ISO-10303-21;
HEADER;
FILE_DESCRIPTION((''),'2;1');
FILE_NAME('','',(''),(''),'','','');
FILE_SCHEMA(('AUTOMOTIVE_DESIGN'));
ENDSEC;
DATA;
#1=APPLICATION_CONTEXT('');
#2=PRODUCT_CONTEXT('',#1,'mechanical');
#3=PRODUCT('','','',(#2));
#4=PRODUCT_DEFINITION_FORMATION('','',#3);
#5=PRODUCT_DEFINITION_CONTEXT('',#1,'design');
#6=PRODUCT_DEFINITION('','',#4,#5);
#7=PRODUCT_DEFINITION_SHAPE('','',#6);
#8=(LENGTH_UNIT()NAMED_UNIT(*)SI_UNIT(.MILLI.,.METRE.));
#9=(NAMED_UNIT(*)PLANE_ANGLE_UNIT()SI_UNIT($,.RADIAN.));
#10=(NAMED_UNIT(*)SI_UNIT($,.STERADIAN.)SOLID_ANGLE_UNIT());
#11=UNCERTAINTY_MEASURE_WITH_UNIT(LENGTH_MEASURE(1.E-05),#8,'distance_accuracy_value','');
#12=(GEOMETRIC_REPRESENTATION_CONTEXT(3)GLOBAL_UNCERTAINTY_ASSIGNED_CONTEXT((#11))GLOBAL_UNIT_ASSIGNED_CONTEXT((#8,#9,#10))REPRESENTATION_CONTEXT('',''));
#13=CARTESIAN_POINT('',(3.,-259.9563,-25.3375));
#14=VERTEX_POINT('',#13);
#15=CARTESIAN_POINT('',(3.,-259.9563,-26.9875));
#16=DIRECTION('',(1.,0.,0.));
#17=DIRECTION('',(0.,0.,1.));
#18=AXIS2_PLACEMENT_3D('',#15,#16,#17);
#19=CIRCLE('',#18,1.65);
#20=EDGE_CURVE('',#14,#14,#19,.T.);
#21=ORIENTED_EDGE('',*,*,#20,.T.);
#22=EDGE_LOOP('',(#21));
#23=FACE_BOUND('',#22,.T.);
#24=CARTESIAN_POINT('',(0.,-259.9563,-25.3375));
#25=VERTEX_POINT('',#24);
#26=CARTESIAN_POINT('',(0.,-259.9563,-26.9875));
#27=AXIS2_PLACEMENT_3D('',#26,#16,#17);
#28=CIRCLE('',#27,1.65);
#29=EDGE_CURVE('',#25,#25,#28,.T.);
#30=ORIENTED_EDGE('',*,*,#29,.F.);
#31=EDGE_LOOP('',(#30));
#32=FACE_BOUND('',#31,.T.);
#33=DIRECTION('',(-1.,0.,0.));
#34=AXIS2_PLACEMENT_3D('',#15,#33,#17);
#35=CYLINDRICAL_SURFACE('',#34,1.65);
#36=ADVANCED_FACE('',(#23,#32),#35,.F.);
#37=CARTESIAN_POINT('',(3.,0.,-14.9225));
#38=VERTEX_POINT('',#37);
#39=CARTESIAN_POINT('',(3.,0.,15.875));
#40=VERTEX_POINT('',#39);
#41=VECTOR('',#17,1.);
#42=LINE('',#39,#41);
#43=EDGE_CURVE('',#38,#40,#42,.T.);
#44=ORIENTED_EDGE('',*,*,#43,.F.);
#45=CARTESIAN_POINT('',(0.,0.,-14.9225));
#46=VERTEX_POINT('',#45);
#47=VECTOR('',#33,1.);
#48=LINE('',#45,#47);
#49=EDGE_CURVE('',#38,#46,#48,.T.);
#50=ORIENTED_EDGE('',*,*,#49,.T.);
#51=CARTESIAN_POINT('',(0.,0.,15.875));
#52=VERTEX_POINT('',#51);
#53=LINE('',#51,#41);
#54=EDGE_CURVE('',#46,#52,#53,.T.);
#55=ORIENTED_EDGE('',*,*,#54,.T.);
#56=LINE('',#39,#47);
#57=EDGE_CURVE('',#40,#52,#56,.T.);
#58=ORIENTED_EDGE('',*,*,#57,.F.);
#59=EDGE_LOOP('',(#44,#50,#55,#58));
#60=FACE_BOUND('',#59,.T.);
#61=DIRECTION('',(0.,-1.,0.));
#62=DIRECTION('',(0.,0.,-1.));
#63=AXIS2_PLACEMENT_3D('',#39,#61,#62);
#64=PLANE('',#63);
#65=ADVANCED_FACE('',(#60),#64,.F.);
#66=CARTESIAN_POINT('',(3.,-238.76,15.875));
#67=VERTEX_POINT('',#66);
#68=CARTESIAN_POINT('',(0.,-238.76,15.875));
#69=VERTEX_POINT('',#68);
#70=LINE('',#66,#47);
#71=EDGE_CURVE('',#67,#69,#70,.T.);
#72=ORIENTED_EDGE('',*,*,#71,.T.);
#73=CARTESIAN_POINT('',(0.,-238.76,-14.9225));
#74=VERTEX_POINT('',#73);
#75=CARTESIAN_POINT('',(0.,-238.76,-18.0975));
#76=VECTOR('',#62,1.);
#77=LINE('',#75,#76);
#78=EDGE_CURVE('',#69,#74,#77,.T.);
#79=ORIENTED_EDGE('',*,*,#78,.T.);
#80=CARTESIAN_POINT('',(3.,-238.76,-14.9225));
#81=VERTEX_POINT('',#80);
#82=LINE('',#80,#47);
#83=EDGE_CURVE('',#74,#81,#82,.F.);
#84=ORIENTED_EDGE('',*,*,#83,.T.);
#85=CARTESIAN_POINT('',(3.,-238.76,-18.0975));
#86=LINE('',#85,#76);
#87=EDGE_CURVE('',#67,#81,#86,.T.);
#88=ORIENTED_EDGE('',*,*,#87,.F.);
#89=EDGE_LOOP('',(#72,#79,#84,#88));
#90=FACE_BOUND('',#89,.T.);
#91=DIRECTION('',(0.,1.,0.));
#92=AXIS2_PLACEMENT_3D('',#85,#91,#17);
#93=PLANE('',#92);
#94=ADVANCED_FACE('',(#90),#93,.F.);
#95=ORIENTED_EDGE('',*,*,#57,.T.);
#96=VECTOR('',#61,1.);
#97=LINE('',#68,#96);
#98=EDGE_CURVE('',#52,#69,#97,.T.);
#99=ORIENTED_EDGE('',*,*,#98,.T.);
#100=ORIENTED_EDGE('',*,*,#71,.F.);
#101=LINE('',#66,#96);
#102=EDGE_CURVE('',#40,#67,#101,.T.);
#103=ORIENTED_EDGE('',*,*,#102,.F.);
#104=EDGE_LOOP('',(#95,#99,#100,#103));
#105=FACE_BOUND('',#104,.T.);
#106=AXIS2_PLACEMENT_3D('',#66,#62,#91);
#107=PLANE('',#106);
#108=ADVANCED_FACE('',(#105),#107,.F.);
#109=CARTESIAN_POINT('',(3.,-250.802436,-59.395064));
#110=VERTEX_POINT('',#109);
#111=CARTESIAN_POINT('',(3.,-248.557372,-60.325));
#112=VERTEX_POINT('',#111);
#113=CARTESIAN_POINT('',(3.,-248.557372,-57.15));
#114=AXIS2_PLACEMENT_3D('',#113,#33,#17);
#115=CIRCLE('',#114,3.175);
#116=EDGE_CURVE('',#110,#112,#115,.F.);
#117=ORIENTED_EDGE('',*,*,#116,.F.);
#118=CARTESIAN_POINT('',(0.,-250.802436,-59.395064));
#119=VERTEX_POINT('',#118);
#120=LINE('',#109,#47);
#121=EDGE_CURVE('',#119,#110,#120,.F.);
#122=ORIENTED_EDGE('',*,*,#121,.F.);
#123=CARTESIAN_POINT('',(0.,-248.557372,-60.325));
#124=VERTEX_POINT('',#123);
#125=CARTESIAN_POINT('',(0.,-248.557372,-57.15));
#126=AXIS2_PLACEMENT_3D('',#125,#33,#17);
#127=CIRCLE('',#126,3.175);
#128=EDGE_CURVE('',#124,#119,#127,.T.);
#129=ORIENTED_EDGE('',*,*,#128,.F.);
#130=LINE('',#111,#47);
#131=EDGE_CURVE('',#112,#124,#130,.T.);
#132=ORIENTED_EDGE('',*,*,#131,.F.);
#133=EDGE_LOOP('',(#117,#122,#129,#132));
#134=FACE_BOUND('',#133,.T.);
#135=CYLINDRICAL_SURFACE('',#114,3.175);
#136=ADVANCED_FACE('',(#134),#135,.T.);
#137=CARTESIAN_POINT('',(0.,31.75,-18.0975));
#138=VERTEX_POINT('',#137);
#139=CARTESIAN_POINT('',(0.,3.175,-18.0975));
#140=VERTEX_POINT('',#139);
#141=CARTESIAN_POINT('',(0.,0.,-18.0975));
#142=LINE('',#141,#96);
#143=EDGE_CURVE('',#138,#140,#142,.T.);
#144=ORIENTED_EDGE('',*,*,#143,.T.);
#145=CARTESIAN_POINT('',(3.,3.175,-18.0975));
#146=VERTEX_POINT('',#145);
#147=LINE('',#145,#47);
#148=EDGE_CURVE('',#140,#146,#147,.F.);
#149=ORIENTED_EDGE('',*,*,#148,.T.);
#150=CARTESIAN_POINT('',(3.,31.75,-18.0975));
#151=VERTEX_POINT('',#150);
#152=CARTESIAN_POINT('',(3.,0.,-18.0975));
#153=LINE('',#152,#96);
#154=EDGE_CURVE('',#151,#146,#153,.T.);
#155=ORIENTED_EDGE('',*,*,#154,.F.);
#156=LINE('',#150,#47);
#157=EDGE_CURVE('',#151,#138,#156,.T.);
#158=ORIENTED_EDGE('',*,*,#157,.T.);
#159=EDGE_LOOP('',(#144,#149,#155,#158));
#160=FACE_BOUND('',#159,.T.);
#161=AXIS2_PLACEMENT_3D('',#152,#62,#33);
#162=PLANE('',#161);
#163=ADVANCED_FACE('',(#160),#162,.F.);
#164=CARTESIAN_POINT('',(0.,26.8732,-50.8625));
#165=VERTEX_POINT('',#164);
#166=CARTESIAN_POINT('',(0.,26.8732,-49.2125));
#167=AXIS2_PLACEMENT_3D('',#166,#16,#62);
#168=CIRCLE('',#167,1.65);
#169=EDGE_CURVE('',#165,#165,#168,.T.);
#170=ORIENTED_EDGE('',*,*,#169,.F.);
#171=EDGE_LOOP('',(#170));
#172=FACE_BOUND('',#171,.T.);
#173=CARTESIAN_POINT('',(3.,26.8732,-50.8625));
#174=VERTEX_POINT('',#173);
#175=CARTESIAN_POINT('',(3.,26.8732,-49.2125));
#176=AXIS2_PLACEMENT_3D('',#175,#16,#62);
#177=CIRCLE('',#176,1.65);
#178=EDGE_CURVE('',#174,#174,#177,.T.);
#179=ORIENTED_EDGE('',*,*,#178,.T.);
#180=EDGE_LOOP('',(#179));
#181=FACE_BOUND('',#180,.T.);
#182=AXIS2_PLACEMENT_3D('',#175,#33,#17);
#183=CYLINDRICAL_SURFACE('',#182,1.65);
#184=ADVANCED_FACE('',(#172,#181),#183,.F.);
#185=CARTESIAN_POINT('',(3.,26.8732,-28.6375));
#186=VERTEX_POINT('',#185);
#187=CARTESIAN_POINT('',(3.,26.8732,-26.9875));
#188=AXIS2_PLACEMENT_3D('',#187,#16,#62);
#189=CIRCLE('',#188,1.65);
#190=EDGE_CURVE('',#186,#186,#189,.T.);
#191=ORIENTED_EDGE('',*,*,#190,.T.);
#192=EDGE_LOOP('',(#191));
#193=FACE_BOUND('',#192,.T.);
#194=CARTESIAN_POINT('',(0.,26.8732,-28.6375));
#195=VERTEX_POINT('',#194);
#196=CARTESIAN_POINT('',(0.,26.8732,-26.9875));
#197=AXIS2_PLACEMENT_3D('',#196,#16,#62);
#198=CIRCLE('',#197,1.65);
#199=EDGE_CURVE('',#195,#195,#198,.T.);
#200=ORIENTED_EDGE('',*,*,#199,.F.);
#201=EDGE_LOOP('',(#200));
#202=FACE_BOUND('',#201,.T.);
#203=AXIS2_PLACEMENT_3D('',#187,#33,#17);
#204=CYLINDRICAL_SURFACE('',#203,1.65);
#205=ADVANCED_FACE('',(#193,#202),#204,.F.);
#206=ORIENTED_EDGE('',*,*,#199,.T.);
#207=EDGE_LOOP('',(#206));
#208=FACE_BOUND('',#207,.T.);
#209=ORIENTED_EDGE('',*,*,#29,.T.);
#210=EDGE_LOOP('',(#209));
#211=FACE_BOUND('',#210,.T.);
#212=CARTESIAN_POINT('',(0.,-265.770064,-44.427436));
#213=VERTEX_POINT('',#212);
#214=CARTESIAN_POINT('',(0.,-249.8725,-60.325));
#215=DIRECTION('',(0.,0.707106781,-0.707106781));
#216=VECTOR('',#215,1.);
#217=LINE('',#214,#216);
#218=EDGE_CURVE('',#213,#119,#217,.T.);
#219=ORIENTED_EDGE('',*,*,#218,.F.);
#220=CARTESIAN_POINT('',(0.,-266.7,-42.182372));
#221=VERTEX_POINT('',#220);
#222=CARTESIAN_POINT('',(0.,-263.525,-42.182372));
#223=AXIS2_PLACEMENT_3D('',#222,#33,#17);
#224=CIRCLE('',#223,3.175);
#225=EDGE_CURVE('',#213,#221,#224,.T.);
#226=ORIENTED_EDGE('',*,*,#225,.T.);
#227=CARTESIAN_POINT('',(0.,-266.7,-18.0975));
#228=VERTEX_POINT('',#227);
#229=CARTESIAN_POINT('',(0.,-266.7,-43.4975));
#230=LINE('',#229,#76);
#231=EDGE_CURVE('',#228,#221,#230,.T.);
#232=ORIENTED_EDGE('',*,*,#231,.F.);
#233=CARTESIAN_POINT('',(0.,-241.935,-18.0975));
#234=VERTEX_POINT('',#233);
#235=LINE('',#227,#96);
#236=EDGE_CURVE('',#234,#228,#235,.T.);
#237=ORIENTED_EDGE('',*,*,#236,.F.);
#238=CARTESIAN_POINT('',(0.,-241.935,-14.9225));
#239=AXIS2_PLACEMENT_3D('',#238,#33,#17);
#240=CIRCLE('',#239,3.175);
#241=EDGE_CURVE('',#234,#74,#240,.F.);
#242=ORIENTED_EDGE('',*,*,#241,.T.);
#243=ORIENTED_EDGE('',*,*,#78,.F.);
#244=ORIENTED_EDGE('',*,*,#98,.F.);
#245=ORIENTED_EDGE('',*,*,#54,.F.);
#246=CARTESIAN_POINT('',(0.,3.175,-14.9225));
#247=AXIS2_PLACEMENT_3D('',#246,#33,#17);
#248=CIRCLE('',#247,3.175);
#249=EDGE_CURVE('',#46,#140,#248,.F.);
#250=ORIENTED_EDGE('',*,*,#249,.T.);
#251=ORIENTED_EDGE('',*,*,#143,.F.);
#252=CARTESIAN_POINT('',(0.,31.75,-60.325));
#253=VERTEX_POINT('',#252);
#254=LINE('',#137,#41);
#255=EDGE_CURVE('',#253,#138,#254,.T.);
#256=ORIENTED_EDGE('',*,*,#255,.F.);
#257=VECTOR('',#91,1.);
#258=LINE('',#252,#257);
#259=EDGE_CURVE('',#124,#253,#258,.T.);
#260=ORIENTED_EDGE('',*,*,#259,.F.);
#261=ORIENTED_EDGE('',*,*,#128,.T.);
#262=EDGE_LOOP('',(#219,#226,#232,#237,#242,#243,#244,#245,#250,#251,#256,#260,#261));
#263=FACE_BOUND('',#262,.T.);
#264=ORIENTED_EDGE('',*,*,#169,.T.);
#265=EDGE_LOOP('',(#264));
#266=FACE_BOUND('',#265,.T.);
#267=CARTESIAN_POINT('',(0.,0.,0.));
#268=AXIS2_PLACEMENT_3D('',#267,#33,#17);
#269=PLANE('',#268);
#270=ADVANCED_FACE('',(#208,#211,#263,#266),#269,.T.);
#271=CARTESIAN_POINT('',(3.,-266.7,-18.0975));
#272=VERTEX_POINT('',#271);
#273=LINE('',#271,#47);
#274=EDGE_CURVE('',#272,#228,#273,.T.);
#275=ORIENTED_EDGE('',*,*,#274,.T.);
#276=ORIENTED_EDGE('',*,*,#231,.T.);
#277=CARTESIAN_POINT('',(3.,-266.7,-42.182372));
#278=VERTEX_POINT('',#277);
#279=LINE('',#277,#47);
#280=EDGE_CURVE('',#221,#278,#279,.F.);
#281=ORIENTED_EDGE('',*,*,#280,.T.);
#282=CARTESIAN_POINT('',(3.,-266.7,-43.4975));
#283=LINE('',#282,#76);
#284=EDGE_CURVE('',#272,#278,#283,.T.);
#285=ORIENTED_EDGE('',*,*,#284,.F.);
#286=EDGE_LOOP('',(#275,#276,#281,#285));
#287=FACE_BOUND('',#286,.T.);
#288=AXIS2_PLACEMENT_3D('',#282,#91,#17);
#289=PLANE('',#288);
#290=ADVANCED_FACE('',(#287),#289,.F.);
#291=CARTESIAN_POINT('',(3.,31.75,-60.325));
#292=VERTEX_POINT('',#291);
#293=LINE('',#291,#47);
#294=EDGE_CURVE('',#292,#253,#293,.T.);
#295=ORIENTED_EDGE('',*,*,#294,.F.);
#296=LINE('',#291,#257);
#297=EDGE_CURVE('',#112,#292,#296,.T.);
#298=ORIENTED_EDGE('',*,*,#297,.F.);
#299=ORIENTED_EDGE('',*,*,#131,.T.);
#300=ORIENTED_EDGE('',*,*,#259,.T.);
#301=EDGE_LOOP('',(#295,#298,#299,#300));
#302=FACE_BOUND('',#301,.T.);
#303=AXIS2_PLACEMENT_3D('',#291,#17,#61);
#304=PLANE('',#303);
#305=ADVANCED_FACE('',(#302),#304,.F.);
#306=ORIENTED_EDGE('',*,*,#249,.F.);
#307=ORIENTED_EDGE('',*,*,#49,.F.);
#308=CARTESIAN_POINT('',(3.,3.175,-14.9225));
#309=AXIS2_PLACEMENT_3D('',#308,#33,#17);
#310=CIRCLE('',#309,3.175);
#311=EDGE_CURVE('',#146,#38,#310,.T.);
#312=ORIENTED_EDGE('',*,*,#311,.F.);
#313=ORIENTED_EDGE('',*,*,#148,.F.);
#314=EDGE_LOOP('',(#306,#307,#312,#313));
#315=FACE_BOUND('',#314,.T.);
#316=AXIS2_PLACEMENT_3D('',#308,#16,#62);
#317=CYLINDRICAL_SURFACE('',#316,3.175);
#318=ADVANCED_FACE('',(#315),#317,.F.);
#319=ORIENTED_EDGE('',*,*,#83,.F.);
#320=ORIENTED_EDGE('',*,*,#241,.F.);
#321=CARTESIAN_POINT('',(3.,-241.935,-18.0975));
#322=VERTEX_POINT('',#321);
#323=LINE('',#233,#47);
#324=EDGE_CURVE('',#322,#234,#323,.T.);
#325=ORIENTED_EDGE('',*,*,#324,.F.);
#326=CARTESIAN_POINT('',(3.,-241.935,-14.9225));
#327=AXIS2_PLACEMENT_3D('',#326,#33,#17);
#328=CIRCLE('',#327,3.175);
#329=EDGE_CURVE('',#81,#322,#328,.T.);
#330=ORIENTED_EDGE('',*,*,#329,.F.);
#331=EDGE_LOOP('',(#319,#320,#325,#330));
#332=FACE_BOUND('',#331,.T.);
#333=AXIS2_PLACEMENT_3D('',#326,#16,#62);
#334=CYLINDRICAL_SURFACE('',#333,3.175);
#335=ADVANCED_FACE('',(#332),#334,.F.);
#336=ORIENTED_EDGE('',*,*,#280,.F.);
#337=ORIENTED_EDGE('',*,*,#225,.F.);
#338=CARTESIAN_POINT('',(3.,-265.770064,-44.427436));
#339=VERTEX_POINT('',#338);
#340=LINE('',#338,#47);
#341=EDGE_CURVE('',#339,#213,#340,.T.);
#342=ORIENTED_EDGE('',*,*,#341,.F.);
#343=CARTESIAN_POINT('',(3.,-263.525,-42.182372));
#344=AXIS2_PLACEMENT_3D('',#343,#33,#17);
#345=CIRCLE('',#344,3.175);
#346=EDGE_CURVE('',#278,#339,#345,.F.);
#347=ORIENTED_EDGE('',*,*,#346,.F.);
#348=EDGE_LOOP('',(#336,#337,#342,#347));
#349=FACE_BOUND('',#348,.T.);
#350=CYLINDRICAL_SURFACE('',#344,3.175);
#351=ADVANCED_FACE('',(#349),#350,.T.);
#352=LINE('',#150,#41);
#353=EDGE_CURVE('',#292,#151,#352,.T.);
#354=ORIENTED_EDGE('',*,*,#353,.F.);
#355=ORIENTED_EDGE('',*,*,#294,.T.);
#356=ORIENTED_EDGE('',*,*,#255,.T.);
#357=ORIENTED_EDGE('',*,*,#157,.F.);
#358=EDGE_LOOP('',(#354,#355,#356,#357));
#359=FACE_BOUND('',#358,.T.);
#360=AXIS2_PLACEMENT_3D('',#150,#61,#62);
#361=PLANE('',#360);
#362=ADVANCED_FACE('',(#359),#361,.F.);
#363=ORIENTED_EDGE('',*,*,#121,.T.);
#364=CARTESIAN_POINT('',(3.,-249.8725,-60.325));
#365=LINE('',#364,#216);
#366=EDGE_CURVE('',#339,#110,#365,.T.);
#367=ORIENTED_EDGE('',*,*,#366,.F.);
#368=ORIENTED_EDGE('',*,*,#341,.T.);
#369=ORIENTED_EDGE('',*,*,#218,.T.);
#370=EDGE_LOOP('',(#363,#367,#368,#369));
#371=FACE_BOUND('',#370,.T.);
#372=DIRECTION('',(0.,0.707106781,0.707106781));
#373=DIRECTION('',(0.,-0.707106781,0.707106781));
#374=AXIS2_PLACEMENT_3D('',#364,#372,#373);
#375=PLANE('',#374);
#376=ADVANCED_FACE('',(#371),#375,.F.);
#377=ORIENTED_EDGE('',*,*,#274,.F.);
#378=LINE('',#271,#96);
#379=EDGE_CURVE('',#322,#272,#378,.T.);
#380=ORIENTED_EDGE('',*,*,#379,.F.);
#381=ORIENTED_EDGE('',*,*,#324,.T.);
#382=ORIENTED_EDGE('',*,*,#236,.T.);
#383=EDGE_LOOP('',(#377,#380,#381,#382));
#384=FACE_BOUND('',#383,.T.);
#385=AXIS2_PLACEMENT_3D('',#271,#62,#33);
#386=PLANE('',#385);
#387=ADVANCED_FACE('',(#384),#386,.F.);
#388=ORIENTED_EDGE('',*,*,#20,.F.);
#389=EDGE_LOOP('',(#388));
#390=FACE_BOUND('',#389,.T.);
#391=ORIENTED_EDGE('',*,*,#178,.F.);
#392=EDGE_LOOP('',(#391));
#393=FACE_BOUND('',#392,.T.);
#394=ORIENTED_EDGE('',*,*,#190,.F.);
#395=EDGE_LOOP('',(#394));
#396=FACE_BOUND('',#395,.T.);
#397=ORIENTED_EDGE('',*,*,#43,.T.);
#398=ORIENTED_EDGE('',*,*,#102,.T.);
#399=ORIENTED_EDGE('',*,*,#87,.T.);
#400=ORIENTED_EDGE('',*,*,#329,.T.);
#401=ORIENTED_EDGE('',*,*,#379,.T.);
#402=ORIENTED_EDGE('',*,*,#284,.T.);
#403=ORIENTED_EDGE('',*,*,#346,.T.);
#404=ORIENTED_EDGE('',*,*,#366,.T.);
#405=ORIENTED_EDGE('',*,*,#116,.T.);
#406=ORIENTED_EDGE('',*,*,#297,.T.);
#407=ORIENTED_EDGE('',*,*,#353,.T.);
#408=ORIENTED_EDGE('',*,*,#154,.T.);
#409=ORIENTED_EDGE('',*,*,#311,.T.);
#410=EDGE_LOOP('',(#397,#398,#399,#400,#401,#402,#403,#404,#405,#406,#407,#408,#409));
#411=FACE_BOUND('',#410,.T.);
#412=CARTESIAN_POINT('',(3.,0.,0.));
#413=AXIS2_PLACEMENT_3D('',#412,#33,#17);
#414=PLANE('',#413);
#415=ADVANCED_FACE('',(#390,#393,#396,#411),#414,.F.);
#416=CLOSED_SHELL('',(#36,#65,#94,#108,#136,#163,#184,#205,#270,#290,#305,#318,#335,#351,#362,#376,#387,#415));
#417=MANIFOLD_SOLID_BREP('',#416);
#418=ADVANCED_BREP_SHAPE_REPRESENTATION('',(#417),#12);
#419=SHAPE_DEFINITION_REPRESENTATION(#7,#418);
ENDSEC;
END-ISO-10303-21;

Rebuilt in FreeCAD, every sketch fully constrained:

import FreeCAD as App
import Part
import Sketcher

V = App.Vector
Q = App.Units.Quantity


def edges_at(feature, points):
    """Names of the edges that pass closest to the given points."""
    edges = feature.Shape.Edges
    near = lambda p: min(range(len(edges)), key=lambda i: edges[i].distToShape(Part.Vertex(*p))[0])
    return sorted({f"Edge{near(p) + 1}" for p in points})


def add_polygon(sketch, points):
    """Adds a closed chain of lines whose ends are joined by coincident constraints."""
    first, n = sketch.GeometryCount, len(points)
    for a, b in zip(points, points[1:] + points[:1]):
        sketch.addGeometry(Part.LineSegment(App.Vector(*a, 0), App.Vector(*b, 0)), False)
    for i in range(n):
        sketch.addConstraint(Sketcher.Constraint("Coincident", first + i, 2, first + (i + 1) % n, 1))

doc = App.newDocument("Part")
body = doc.addObject("PartDesign::Body", "Body")

sketch1 = body.newObject("Sketcher::SketchObject", "Sketch")
sketch1.AttachmentSupport = (doc.getObject("YZ_Plane"), [""])
sketch1.MapMode = "FlatFace"
add_polygon(sketch1, [(0, -18.0975), (0, 15.875), (-238.76, 15.875), (-238.76, -18.0975), (-266.7, -18.0975), (-266.7, -43.4975), (-249.8725, -60.325), (31.75, -60.325), (31.75, -18.0975)])
sketch1.addGeometry(Part.Circle(V(-259.9563, -26.9875, 0), V(0, 0, 1), 1.65), False)
sketch1.addGeometry(Part.Circle(V(26.8732, -49.2125, 0), V(0, 0, 1), 1.65), False)
sketch1.addGeometry(Part.Circle(V(26.8732, -26.9875, 0), V(0, 0, 1), 1.65), False)
sketch1.addConstraint([
    Sketcher.Constraint("Vertical", 0),
    Sketcher.Constraint("Horizontal", 1),
    Sketcher.Constraint("Vertical", 2),
    Sketcher.Constraint("Horizontal", 3),
    Sketcher.Constraint("Vertical", 4),
    Sketcher.Constraint("Horizontal", 6),
    Sketcher.Constraint("Vertical", 7),
    Sketcher.Constraint("Horizontal", 8),
    Sketcher.Constraint("Equal", 9, 10),
    Sketcher.Constraint("Equal", 10, 11),
    Sketcher.Constraint("PointOnObject", 0, 2, -2),
    Sketcher.Constraint("Horizontal", 9, 3, 11, 3),
    Sketcher.Constraint("Horizontal", 3, 2, 7, 2),
    Sketcher.Constraint("Vertical", 10, 3, 11, 3),
    Sketcher.Constraint("DistanceY", 4, 2, 4, 1, Q("1 in")),
    Sketcher.Constraint("DistanceX", 1, 2, 1, 1, Q("9.4 in")),
    Sketcher.Constraint("DistanceX", 3, 2, 3, 1, Q("1.1 in")),
    Sketcher.Constraint("Angle", 5, Q("-45 deg")),
    Sketcher.Constraint("DistanceY", 5, 2, 1, 2, Q("3 in")),
    Sketcher.Constraint("DistanceX", 8, 2, 8, 1, Q("1.25 in")),
    Sketcher.Constraint("Diameter", 9, 3.3),
    Sketcher.Constraint("DistanceY", 9, 3, 2, 2, Q("0.35 in")),
    Sketcher.Constraint("DistanceX", 6, 1, 6, 2, Q("11.0875 in")),
    Sketcher.Constraint("DistanceY", 9, 3, -1, 1, Q("1.0625 in")),
    Sketcher.Constraint("DistanceX", -1, 1, 10, 3, Q("1.058 in")),
    Sketcher.Constraint("DistanceY", 10, 3, -1, 1, Q("1.9375 in")),
    Sketcher.Constraint("DistanceX", 9, 3, 5, 2, Q("0.397 in")),
])
pad1 = body.newObject("PartDesign::Pad", "Pad")
pad1.Profile = sketch1
pad1.Length = 3
doc.recompute()

fillet = body.newObject("PartDesign::Fillet", "Fillet")
fillet.Base = (pad1, edges_at(pad1, [
    (1.5, 0, -18.098),
    (1.5, -249.873, -60.325),
    (1.5, -266.7, -43.498),
    (1.5, -238.76, -18.098),
]))
fillet.Radius = Q("0.125 in")

doc.recompute()
